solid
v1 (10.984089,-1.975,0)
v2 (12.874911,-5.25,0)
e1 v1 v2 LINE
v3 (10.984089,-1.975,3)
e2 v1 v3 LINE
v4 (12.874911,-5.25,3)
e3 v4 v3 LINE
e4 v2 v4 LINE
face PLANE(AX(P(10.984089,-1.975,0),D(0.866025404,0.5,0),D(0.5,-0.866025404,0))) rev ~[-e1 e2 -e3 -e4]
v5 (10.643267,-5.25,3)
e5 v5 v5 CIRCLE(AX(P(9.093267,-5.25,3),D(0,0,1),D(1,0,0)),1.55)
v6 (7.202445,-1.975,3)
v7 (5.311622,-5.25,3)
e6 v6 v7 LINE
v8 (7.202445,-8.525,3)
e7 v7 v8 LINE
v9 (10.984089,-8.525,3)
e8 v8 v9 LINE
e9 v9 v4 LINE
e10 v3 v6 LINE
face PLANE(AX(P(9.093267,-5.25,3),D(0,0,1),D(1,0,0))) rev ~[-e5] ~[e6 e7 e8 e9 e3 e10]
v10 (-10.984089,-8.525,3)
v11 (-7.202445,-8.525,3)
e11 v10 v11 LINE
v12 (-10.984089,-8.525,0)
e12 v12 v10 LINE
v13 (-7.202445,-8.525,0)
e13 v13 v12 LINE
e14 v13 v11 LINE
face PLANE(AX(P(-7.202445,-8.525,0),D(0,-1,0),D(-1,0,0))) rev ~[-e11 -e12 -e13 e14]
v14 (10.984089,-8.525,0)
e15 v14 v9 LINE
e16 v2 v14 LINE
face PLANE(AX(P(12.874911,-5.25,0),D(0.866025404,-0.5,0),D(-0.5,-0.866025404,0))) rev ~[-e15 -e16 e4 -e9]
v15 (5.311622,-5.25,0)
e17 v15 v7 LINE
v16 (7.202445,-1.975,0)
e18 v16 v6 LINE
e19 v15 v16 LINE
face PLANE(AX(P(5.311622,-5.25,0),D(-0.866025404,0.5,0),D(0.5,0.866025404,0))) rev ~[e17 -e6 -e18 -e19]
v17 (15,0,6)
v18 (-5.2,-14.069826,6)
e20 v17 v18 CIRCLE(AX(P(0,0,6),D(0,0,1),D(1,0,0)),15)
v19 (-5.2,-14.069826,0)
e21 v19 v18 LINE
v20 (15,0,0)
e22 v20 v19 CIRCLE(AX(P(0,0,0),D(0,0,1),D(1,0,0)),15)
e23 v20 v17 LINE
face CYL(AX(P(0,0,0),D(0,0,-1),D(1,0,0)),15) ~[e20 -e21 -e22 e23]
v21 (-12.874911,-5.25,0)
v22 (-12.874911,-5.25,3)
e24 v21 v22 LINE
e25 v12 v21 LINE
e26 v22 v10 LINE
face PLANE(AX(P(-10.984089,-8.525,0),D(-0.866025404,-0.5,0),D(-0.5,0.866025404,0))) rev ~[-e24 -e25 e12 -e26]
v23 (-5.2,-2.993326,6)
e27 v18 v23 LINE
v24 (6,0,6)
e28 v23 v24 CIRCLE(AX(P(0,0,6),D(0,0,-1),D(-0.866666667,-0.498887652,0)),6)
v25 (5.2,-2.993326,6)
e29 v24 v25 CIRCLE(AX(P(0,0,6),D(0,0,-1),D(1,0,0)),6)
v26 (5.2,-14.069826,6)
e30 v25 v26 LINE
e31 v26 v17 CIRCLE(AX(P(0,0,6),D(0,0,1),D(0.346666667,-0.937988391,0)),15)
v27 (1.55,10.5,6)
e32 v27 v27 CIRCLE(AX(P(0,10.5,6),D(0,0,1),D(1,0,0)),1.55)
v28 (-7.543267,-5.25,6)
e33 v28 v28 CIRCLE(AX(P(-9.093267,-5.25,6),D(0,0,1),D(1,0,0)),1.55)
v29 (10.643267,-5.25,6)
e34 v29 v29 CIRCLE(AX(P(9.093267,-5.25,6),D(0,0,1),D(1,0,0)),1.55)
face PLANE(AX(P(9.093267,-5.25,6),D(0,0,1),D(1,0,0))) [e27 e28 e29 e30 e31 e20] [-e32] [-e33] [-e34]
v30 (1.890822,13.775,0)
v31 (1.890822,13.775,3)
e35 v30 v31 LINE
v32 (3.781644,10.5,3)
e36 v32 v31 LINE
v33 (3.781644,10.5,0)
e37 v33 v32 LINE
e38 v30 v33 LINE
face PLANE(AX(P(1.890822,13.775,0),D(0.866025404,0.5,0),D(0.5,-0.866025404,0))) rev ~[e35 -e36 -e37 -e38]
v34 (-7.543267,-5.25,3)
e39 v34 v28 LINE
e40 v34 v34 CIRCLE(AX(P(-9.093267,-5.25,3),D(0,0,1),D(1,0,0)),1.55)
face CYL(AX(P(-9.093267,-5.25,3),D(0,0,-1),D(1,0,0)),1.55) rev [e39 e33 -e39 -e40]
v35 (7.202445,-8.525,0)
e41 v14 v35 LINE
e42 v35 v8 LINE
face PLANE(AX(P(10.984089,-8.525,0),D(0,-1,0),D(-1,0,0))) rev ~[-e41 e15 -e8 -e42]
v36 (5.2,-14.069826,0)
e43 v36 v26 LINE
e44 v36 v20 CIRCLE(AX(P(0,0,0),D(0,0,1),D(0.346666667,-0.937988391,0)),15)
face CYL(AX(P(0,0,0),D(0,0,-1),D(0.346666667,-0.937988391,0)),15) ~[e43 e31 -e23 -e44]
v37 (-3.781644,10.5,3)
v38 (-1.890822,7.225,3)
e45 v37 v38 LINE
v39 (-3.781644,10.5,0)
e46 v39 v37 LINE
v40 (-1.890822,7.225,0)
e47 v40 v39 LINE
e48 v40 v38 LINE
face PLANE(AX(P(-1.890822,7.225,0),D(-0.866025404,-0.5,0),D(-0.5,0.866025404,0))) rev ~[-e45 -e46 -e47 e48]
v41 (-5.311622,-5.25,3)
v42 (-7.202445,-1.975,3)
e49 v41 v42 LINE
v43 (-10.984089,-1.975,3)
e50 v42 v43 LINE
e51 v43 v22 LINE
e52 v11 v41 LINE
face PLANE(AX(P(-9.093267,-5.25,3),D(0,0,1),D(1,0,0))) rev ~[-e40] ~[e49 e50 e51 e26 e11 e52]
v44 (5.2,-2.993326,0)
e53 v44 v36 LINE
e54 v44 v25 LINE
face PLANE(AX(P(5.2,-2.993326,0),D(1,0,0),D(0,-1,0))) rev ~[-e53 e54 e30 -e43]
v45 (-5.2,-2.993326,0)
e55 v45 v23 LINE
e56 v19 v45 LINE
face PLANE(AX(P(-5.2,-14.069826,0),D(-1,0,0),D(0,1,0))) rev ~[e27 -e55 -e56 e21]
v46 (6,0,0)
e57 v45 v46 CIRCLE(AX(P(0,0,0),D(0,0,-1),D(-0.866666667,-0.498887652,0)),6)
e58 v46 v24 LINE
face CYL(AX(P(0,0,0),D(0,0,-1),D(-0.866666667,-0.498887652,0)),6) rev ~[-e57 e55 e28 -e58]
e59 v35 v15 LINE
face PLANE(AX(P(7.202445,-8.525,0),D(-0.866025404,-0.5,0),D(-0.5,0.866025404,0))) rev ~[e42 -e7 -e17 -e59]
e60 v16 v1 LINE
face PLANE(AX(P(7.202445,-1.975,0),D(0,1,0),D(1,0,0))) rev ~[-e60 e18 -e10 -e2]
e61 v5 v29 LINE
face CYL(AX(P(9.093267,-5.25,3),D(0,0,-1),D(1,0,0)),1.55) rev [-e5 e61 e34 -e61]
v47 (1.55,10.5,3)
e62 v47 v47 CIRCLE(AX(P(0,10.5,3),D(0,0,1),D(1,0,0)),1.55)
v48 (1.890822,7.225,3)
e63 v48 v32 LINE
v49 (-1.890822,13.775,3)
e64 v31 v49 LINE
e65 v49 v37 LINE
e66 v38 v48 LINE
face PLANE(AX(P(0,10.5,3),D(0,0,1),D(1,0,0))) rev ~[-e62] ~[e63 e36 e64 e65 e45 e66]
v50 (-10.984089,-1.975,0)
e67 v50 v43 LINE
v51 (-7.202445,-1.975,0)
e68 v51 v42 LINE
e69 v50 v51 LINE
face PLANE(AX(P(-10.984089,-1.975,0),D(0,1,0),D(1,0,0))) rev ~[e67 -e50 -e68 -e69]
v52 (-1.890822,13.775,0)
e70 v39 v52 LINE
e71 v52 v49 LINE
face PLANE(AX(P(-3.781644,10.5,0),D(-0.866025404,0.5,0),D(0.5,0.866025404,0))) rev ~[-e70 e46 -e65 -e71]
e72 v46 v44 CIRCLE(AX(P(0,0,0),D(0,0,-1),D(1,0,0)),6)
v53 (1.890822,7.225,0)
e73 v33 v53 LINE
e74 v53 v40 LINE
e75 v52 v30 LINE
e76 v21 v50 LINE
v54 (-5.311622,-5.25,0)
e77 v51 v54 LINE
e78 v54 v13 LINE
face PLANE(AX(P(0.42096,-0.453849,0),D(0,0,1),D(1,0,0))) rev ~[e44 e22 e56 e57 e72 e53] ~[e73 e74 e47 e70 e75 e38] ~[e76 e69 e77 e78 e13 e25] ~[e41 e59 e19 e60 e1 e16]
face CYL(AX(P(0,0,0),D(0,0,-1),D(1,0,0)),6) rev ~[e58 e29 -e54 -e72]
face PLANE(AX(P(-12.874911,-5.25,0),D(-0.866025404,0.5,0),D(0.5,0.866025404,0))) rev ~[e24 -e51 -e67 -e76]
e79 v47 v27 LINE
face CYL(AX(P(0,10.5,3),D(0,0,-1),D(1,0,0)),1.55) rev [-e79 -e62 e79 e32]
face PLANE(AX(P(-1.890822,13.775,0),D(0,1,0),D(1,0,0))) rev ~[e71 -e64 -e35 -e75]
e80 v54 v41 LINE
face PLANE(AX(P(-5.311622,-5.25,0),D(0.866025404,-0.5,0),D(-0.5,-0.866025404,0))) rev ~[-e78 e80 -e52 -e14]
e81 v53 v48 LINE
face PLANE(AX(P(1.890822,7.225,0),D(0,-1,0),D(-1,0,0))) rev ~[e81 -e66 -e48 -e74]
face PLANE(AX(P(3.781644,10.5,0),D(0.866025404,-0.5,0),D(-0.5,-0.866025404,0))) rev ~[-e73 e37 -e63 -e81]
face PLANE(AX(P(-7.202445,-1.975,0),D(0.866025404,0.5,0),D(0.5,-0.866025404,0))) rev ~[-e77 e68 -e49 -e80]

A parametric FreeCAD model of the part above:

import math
import FreeCAD as App
import Part
import Sketcher
from FreeCAD import Vector
Q = App.Units.Quantity


def add_polygon(sketch, points):
    """Adds a closed chain of lines whose ends are joined by coincident constraints."""
    first, n = sketch.GeometryCount, len(points)
    for a, b in zip(points, points[1:] + points[:1]):
        sketch.addGeometry(Part.LineSegment(App.Vector(*a, 0), App.Vector(*b, 0)), False)
    for i in range(n):
        sketch.addConstraint(Sketcher.Constraint("Coincident", first + i, 2, first + (i + 1) % n, 1))

doc = App.newDocument("Part")
body = doc.addObject("PartDesign::Body", "Body")

sketch1 = body.newObject("Sketcher::SketchObject", "Sketch")
sketch1.AttachmentSupport = (doc.getObject("XY_Plane"), [""])
sketch1.MapMode = "FlatFace"
sketch1.addGeometry(Part.ArcOfCircle(Part.Circle(Vector(0, 0, 0), Vector(0, 0, 1), 6), math.radians(0), math.radians(210)), False)
sketch1.addGeometry(Part.ArcOfCircle(Part.Circle(Vector(0, 0, 0), Vector(0, 0, 1), 6), math.radians(-30), math.radians(0)), False)
sketch1.addGeometry(Part.LineSegment(Vector(5.2, -3, 0), Vector(5.2, -14.1, 0)), False)
sketch1.addGeometry(Part.ArcOfCircle(Part.Circle(Vector(0, 0, 0), Vector(0, 0, 1), 15), math.radians(-70), math.radians(0)), False)
sketch1.addGeometry(Part.ArcOfCircle(Part.Circle(Vector(0, 0, 0), Vector(0, 0, 1), 15), math.radians(0), math.radians(250)), False)
sketch1.addGeometry(Part.LineSegment(Vector(-5.2, -14.1, 0), Vector(-5.2, -3, 0)), False)
add_polygon(sketch1, [(-7.2, -8.5), (-11, -8.5), (-12.9, -5.2), (-11, -2), (-7.2, -2), (-5.3, -5.2)])
add_polygon(sketch1, [(11, -2), (12.9, -5.2), (11, -8.5), (7.2, -8.5), (5.3, -5.2), (7.2, -2)])
add_polygon(sketch1, [(1.9, 13.8), (3.8, 10.5), (1.9, 7.2), (-1.9, 7.2), (-3.8, 10.5), (-1.9, 13.8)])
sketch1.addConstraint(Sketcher.Constraint("Tangent", 0, 1, 1, 2))
sketch1.addConstraint(Sketcher.Constraint("Coincident", 1, 1, 2, 1))
sketch1.addConstraint(Sketcher.Constraint("Coincident", 2, 2, 3, 1))
sketch1.addConstraint(Sketcher.Constraint("Tangent", 3, 2, 4, 1))
sketch1.addConstraint(Sketcher.Constraint("Coincident", 4, 2, 5, 1))
sketch1.addConstraint(Sketcher.Constraint("Coincident", 5, 2, 0, 2))
sketch1.addConstraint(Sketcher.Constraint("Vertical", 2))
sketch1.addConstraint(Sketcher.Constraint("Vertical", 5))
sketch1.addConstraint(Sketcher.Constraint("Horizontal", 6))
sketch1.addConstraint(Sketcher.Constraint("Horizontal", 9))
sketch1.addConstraint(Sketcher.Constraint("Horizontal", 14))
sketch1.addConstraint(Sketcher.Constraint("Horizontal", 17))
sketch1.addConstraint(Sketcher.Constraint("Horizontal", 20))
sketch1.addConstraint(Sketcher.Constraint("Horizontal", 23))
sketch1.addConstraint(Sketcher.Constraint("Coincident", 0, 3, -1, 1))
sketch1.addConstraint(Sketcher.Constraint("Coincident", 3, 3, -1, 1))
sketch1.addConstraint(Sketcher.Constraint("Equal", 0, 1))
sketch1.addConstraint(Sketcher.Constraint("Equal", 3, 4))
sketch1.addConstraint(Sketcher.Constraint("Symmetric", 7, 2, 12, 2, -2))
sketch1.addConstraint(Sketcher.Constraint("Symmetric", 6, 2, 13, 2, -2))
sketch1.addConstraint(Sketcher.Constraint("Symmetric", 10, 2, 15, 2, -2))
sketch1.addConstraint(Sketcher.Constraint("Symmetric", 9, 2, 16, 2, -2))
sketch1.addConstraint(Sketcher.Constraint("Symmetric", 18, 2, 21, 2, -2))
sketch1.addConstraint(Sketcher.Constraint("PointOnObject", 0, 1, -1))
sketch1.addConstraint(Sketcher.Constraint("PointOnObject", 3, 2, -1))
sketch1.addConstraint(Sketcher.Constraint("Parallel", 7, 10))
sketch1.addConstraint(Sketcher.Constraint("Parallel", 8, 11))
sketch1.addConstraint(Sketcher.Constraint("Parallel", 10, 12))
sketch1.addConstraint(Sketcher.Constraint("Parallel", 11, 13))
sketch1.addConstraint(Sketcher.Constraint("Parallel", 12, 15))
sketch1.addConstraint(Sketcher.Constraint("Parallel", 15, 18))
sketch1.addConstraint(Sketcher.Constraint("Parallel", 16, 19))
sketch1.addConstraint(Sketcher.Constraint("Parallel", 18, 21))
sketch1.addConstraint(Sketcher.Constraint("Parallel", 19, 22))
sketch1.addConstraint(Sketcher.Constraint("Horizontal", 2, 2, 4, 2))
sketch1.addConstraint(Sketcher.Constraint("Horizontal", 7, 2, 10, 2))
sketch1.addConstraint(Sketcher.Constraint("Vertical", 6, 2, 8, 2))
sketch1.addConstraint(Sketcher.Constraint("Vertical", 20, 2, 22, 2))
sketch1.addConstraint(Sketcher.Constraint("Equal", 17, 20))
sketch1.addConstraint(Sketcher.Constraint("Equal", 16, 18))
sketch1.addConstraint(Sketcher.Constraint("Radius", 0, Q("6 mm")))
sketch1.addConstraint(Sketcher.Constraint("Radius", 3, Q("15 mm")))
sketch1.addConstraint(Sketcher.Constraint("Angle", 7, Q("120 deg")))
sketch1.addConstraint(Sketcher.Constraint("DistanceX", -1, 1, 1, 1, Q("5.2 mm")))
sketch1.addConstraint(Sketcher.Constraint("DistanceY", -1, 1, 18, 2, Q("10.5 mm")))
sketch1.addConstraint(Sketcher.Constraint("DistanceY", 7, 2, -1, 1, Q("5.25 mm")))
sketch1.addConstraint(Sketcher.Constraint("DistanceY", 6, 2, 8, 2, Q("6.55 mm")))
sketch1.addConstraint(Sketcher.Constraint("DistanceX", 6, 2, 6, 1, Q("3.781644 mm")))
sketch1.addConstraint(Sketcher.Constraint("DistanceX", 6, 2, -1, 1, Q("10.984089 mm")))
pad1 = body.newObject("PartDesign::Pad", "Pad")
pad1.Profile = sketch1
pad1.Length = 6

sketch2 = body.newObject("Sketcher::SketchObject", "Sketch001")
sketch2.AttachmentSupport = (doc.getObject("XY_Plane"), [""])
sketch2.MapMode = "FlatFace"
sketch2.AttachmentOffset = App.Placement(Vector(0, 0, 3), App.Rotation())
add_polygon(sketch2, [(7.2, -8.5), (11, -8.5), (12.9, -5.2), (11, -2), (7.2, -2), (5.3, -5.2)])
sketch2.addGeometry(Part.Circle(Vector(9.1, -5.2, 0), Vector(0, 0, 1), 1.6), False)
add_polygon(sketch2, [(-1.9, 7.2), (1.9, 7.2), (3.8, 10.5), (1.9, 13.8), (-1.9, 13.8), (-3.8, 10.5)])
sketch2.addGeometry(Part.Circle(Vector(0, 10.5, 0), Vector(0, 0, 1), 1.6), False)
add_polygon(sketch2, [(-11, -2), (-12.9, -5.2), (-11, -8.5), (-7.2, -8.5), (-5.3, -5.2), (-7.2, -2)])
sketch2.addGeometry(Part.Circle(Vector(-9.1, -5.2, 0), Vector(0, 0, 1), 1.6), False)
sketch2.addConstraint(Sketcher.Constraint("Horizontal", 0))
sketch2.addConstraint(Sketcher.Constraint("Horizontal", 3))
sketch2.addConstraint(Sketcher.Constraint("Horizontal", 7))
sketch2.addConstraint(Sketcher.Constraint("Horizontal", 10))
sketch2.addConstraint(Sketcher.Constraint("Horizontal", 16))
sketch2.addConstraint(Sketcher.Constraint("Horizontal", 19))
sketch2.addConstraint(Sketcher.Constraint("Equal", 6, 13))
sketch2.addConstraint(Sketcher.Constraint("Equal", 13, 20))
sketch2.addConstraint(Sketcher.Constraint("Symmetric", 6, 3, 20, 3, -2))
sketch2.addConstraint(Sketcher.Constraint("Symmetric", 8, 2, 11, 2, -2))
sketch2.addConstraint(Sketcher.Constraint("Symmetric", 1, 2, 14, 2, -2))
sketch2.addConstraint(Sketcher.Constraint("Symmetric", 0, 2, 15, 2, -2))
sketch2.addConstraint(Sketcher.Constraint("Symmetric", 4, 2, 17, 2, -2))
sketch2.addConstraint(Sketcher.Constraint("Symmetric", 3, 2, 18, 2, -2))
sketch2.addConstraint(Sketcher.Constraint("PointOnObject", 13, 3, -2))
sketch2.addConstraint(Sketcher.Constraint("Parallel", 1, 4))
sketch2.addConstraint(Sketcher.Constraint("Parallel", 2, 5))
sketch2.addConstraint(Sketcher.Constraint("Parallel", 4, 8))
sketch2.addConstraint(Sketcher.Constraint("Parallel", 5, 9))
sketch2.addConstraint(Sketcher.Constraint("Parallel", 8, 11))
sketch2.addConstraint(Sketcher.Constraint("Parallel", 9, 12))
sketch2.addConstraint(Sketcher.Constraint("Parallel", 11, 14))
sketch2.addConstraint(Sketcher.Constraint("Parallel", 12, 15))
sketch2.addConstraint(Sketcher.Constraint("Parallel", 14, 17))
sketch2.addConstraint(Sketcher.Constraint("Horizontal", 20, 3, 1, 2))
sketch2.addConstraint(Sketcher.Constraint("Horizontal", 1, 2, 4, 2))
sketch2.addConstraint(Sketcher.Constraint("Horizontal", 13, 3, 8, 2))
sketch2.addConstraint(Sketcher.Constraint("Vertical", 0, 2, 2, 2))
sketch2.addConstraint(Sketcher.Constraint("Vertical", 7, 2, 9, 2))
sketch2.addConstraint(Sketcher.Constraint("Equal", 3, 7))
sketch2.addConstraint(Sketcher.Constraint("Equal", 5, 8))
sketch2.addConstraint(Sketcher.Constraint("Diameter", 6, Q("3.1 mm")))
sketch2.addConstraint(Sketcher.Constraint("Angle", 1, Q("60 deg")))
sketch2.addConstraint(Sketcher.Constraint("DistanceY", -1, 1, 13, 3, Q("10.5 mm")))
sketch2.addConstraint(Sketcher.Constraint("DistanceY", 3, 2, 7, 2, Q("9.2 mm")))
sketch2.addConstraint(Sketcher.Constraint("DistanceY", 6, 3, -1, 1, Q("5.25 mm")))
sketch2.addConstraint(Sketcher.Constraint("DistanceX", 7, 2, 4, 2, Q("3.4208 mm")))
sketch2.addConstraint(Sketcher.Constraint("DistanceX", 0, 1, 0, 2, Q("3.781644 mm")))
sketch2.addConstraint(Sketcher.Constraint("DistanceX", -1, 1, 6, 3, Q("9.093267 mm")))
pad2 = body.newObject("PartDesign::Pad", "Pad001")
pad2.Profile = sketch2
pad2.Length = 3

doc.recompute()
